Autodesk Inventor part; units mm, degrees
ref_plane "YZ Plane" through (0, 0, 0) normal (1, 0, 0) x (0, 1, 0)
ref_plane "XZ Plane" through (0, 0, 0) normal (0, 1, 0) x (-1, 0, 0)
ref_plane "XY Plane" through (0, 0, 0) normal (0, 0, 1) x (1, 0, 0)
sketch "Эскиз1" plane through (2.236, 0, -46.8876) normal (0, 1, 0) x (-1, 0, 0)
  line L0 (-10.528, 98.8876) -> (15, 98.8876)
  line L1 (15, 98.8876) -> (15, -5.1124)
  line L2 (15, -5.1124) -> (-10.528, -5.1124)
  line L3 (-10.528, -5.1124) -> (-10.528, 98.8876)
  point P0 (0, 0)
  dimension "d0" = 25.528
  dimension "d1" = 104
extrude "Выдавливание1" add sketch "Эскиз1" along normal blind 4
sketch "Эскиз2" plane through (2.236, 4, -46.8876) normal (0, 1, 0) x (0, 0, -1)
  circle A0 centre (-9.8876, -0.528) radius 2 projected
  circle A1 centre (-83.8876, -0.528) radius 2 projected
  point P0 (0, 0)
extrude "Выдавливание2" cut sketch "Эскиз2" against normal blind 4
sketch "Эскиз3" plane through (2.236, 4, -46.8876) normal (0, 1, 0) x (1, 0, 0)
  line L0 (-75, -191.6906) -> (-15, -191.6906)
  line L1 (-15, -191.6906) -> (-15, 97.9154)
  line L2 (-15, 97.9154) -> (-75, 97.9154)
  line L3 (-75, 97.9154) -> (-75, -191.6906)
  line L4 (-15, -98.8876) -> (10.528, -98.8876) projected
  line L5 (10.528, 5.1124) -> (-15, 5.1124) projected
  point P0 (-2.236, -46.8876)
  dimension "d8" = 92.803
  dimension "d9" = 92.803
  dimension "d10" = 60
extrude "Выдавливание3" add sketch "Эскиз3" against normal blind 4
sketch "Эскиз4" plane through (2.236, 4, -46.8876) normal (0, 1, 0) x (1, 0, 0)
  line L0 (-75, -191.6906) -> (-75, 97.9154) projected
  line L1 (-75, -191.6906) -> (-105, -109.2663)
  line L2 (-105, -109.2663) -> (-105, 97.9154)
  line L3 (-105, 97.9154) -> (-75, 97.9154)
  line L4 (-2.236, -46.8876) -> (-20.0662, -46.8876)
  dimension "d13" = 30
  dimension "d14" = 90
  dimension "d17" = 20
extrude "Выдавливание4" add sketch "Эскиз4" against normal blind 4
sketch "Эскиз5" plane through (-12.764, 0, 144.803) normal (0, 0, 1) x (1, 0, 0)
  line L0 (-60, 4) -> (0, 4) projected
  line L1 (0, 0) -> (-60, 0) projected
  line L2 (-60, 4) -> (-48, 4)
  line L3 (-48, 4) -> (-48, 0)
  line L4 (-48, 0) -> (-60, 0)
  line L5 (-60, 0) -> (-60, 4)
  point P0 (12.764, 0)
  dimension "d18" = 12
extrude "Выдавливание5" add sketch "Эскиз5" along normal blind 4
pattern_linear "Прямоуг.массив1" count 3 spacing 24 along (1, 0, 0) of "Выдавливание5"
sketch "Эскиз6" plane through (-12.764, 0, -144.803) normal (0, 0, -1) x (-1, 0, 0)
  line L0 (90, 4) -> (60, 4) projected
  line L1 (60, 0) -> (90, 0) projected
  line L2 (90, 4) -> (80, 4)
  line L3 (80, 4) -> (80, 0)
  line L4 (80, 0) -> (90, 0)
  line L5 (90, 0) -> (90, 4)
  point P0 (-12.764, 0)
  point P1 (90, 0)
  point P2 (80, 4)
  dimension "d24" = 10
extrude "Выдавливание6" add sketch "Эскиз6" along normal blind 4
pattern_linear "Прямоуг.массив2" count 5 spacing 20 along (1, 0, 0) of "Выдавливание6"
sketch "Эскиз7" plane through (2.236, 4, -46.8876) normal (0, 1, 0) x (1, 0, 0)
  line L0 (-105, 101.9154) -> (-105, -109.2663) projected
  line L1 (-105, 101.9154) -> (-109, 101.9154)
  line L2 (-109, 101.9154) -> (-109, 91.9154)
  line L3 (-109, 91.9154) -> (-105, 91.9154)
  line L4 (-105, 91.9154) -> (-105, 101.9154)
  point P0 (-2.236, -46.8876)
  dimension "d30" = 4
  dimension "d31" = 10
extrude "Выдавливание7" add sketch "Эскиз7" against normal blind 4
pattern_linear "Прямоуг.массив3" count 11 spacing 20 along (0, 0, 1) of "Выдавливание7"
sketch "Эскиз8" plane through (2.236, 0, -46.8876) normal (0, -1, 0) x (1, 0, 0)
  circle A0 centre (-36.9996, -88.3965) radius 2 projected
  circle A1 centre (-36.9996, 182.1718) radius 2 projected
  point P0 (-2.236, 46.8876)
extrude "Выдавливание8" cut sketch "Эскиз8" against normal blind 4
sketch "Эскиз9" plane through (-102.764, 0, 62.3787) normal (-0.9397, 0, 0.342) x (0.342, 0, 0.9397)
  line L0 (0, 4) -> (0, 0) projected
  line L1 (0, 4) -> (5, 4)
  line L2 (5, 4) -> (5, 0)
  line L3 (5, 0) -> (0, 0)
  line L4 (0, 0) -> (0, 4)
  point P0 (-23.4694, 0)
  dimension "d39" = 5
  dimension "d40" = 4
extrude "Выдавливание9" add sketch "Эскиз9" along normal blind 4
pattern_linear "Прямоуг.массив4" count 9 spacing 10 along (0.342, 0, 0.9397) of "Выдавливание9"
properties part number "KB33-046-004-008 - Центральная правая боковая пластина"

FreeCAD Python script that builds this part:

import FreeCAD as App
import Part
import Sketcher

V = App.Vector
Q = App.Units.Quantity

doc = App.newDocument("Part")
body = doc.addObject("PartDesign::Body", "Body")

sketch1 = body.newObject("Sketcher::SketchObject", "Sketch")
sketch1.AttachmentSupport = (doc.getObject("XZ_Plane"), [""])
sketch1.MapMode = "FlatFace"
sketch1.addGeometry([
    Part.LineSegment(V(-13, 52, 0), V(13, 52, 0)),
    Part.LineSegment(V(13, 52, 0), V(13, -52, 0)),
    Part.LineSegment(V(13, -52, 0), V(-13, -52, 0)),
    Part.LineSegment(V(-13, -52, 0), V(-13, 52, 0)),
], False)
sketch1.addConstraint([
    Sketcher.Constraint("Coincident", 0, 2, 1, 1),
    Sketcher.Constraint("Coincident", 1, 2, 2, 1),
    Sketcher.Constraint("Coincident", 2, 2, 3, 1),
    Sketcher.Constraint("Coincident", 3, 2, 0, 1),
    Sketcher.Constraint("Horizontal", 0),
    Sketcher.Constraint("Vertical", 1),
    Sketcher.Constraint("Horizontal", 2),
    Sketcher.Constraint("Vertical", 3),
    Sketcher.Constraint("Symmetric", 0, 2, 2, 2, -1, 1),
    Sketcher.Constraint("DistanceY", 1, 2, 1, 1, 104.0),
    Sketcher.Constraint("DistanceX", 0, 1, 0, 2, 25.528),
])
pad1 = body.newObject("PartDesign::Pad", "Pad")
pad1.Profile = sketch1
pad1.Length = 4
pad1.Reversed = True

sketch2 = body.newObject("Sketcher::SketchObject", "Sketch001")
sketch2.AttachmentSupport = (doc.getObject("XZ_Plane"), [""])
sketch2.MapMode = "FlatFace"
sketch2.AttachmentOffset = App.Placement(V(0, 0, -4), App.Rotation())
sketch2.addGeometry([
    Part.Circle(V(2.8, -37, 0), V(0, 0, 1), 2),
    Part.Circle(V(2.8, 37, 0), V(0, 0, 1), 2),
], False)
sketch2.addConstraint([
    Sketcher.Constraint("Equal", 0, 1),
    Sketcher.Constraint("Symmetric", 0, 3, 1, 3, -1),
    Sketcher.Constraint("Diameter", 0, 4.0),
    Sketcher.Constraint("DistanceY", 0, 3, -1, 1, 37.0),
    Sketcher.Constraint("DistanceX", -1, 1, 0, 3, 2.764),
])
pocket1 = body.newObject("PartDesign::Pocket", "Pocket")
pocket1.Profile = sketch2
pocket1.Length = 4
pocket1.Reversed = True

sketch3 = body.newObject("Sketcher::SketchObject", "Sketch002")
sketch3.AttachmentSupport = (doc.getObject("XZ_Plane"), [""])
sketch3.MapMode = "FlatFace"
sketch3.AttachmentOffset = App.Placement(V(0, 0, -4), App.Rotation())
sketch3.addGeometry([
    Part.LineSegment(V(-73, -145, 0), V(-73, 145, 0)),
    Part.LineSegment(V(-73, 145, 0), V(-13, 145, 0)),
    Part.LineSegment(V(-13, 145, 0), V(-13, -145, 0)),
    Part.LineSegment(V(-13, -145, 0), V(-73, -145, 0)),
], False)
sketch3.addConstraint([
    Sketcher.Constraint("Coincident", 0, 2, 1, 1),
    Sketcher.Constraint("Coincident", 1, 2, 2, 1),
    Sketcher.Constraint("Coincident", 2, 2, 3, 1),
    Sketcher.Constraint("Coincident", 3, 2, 0, 1),
    Sketcher.Constraint("Vertical", 0),
    Sketcher.Constraint("Horizontal", 1),
    Sketcher.Constraint("Vertical", 2),
    Sketcher.Constraint("Horizontal", 3),
    Sketcher.Constraint("DistanceX", 1, 1, 1, 2, 60.0),
    Sketcher.Constraint("DistanceY", 0, 1, 0, 2, 289.606),
    Sketcher.Constraint("DistanceX", 0, 2, -1, 1, 72.764),
    Sketcher.Constraint("DistanceY", -1, 1, 0, 2, 144.803),
])
pad2 = body.newObject("PartDesign::Pad", "Pad001")
pad2.Profile = sketch3
pad2.Length = 4

sketch4 = body.newObject("Sketcher::SketchObject", "Sketch003")
sketch4.AttachmentSupport = (doc.getObject("XZ_Plane"), [""])
sketch4.MapMode = "FlatFace"
sketch4.AttachmentOffset = App.Placement(V(0, 0, -4), App.Rotation())
sketch4.addGeometry([
    Part.LineSegment(V(-103, 62, 0), V(-73, 145, 0)),
    Part.LineSegment(V(-73, 145, 0), V(-73, -145, 0)),
    Part.LineSegment(V(-73, -145, 0), V(-103, -145, 0)),
    Part.LineSegment(V(-103, -145, 0), V(-103, 62, 0)),
], False)
sketch4.addConstraint([
    Sketcher.Constraint("Coincident", 0, 2, 1, 1),
    Sketcher.Constraint("Coincident", 1, 2, 2, 1),
    Sketcher.Constraint("Coincident", 2, 2, 3, 1),
    Sketcher.Constraint("Coincident", 3, 2, 0, 1),
    Sketcher.Constraint("Vertical", 1),
    Sketcher.Constraint("Horizontal", 2),
    Sketcher.Constraint("Vertical", 3),
    Sketcher.Constraint("DistanceX", 2, 2, 2, 1, 30.0),
    Sketcher.Constraint("Angle", 0, Q("70 deg")),
    Sketcher.Constraint("DistanceY", 1, 2, 1, 1, 289.606),
    Sketcher.Constraint("DistanceX", 0, 2, -1, 1, 72.764),
    Sketcher.Constraint("DistanceY", -1, 1, 0, 2, 144.803),
])
pad3 = body.newObject("PartDesign::Pad", "Pad002")
pad3.Profile = sketch4
pad3.Length = 4

sketch5 = body.newObject("Sketcher::SketchObject", "Sketch004")
sketch5.AttachmentSupport = (doc.getObject("XY_Plane"), [""])
sketch5.MapMode = "FlatFace"
sketch5.AttachmentOffset = App.Placement(V(0, 0, 144.803), App.Rotation())
sketch5.addGeometry([
    Part.LineSegment(V(-60.8, 4, 0), V(-72.8, 4, 0)),
    Part.LineSegment(V(-72.8, 4, 0), V(-72.8, 0, 0)),
    Part.LineSegment(V(-72.8, 0, 0), V(-60.8, 0, 0)),
    Part.LineSegment(V(-60.8, 0, 0), V(-60.8, 4, 0)),
], False)
sketch5.addConstraint([
    Sketcher.Constraint("Coincident", 0, 2, 1, 1),
    Sketcher.Constraint("Coincident", 1, 2, 2, 1),
    Sketcher.Constraint("Coincident", 2, 2, 3, 1),
    Sketcher.Constraint("Coincident", 3, 2, 0, 1),
    Sketcher.Constraint("Horizontal", 0),
    Sketcher.Constraint("Vertical", 1),
    Sketcher.Constraint("Horizontal", 2),
    Sketcher.Constraint("Vertical", 3),
    Sketcher.Constraint("PointOnObject", 1, 2, -1),
    Sketcher.Constraint("DistanceX", 0, 2, 0, 1, 12.0),
    Sketcher.Constraint("DistanceY", 1, 2, 1, 1, 4.0),
    Sketcher.Constraint("DistanceX", 0, 2, -1, 1, 72.764),
])
pad4 = body.newObject("PartDesign::Pad", "Pad003")
pad4.Profile = sketch5
pad4.Length = 4
doc.recompute()

linearpattern = body.newObject("PartDesign::LinearPattern", "LinearPattern")
linearpattern.Originals = [pad4]
linearpattern.Direction = (doc.getObject("X_Axis"), [""])
linearpattern.Mode = "offset"
linearpattern.Offset = 24
linearpattern.Occurrences = 3
body.Tip = linearpattern

sketch6 = body.newObject("Sketcher::SketchObject", "Sketch005")
sketch6.AttachmentSupport = (doc.getObject("XY_Plane"), [""])
sketch6.MapMode = "FlatFace"
sketch6.AttachmentOffset = App.Placement(V(0, 0, -144.803), App.Rotation())
sketch6.addGeometry([
    Part.LineSegment(V(-102.8, 0, 0), V(-102.8, 4, 0)),
    Part.LineSegment(V(-102.8, 4, 0), V(-92.8, 4, 0)),
    Part.LineSegment(V(-92.8, 4, 0), V(-92.8, 0, 0)),
    Part.LineSegment(V(-92.8, 0, 0), V(-102.8, 0, 0)),
], False)
sketch6.addConstraint([
    Sketcher.Constraint("Coincident", 0, 2, 1, 1),
    Sketcher.Constraint("Coincident", 1, 2, 2, 1),
    Sketcher.Constraint("Coincident", 2, 2, 3, 1),
    Sketcher.Constraint("Coincident", 3, 2, 0, 1),
    Sketcher.Constraint("Vertical", 0),
    Sketcher.Constraint("Horizontal", 1),
    Sketcher.Constraint("Vertical", 2),
    Sketcher.Constraint("Horizontal", 3),
    Sketcher.Constraint("PointOnObject", 2, 2, -1),
    Sketcher.Constraint("DistanceX", 1, 1, 1, 2, 10.0),
    Sketcher.Constraint("DistanceY", 0, 1, 0, 2, 4.0),
    Sketcher.Constraint("DistanceX", 0, 2, -1, 1, 102.764),
])
pad5 = body.newObject("PartDesign::Pad", "Pad004")
pad5.Profile = sketch6
pad5.Length = 4
pad5.Reversed = True
doc.recompute()

linearpattern2 = body.newObject("PartDesign::LinearPattern", "LinearPattern001")
linearpattern2.Originals = [pad5]
linearpattern2.Direction = (doc.getObject("X_Axis"), [""])
linearpattern2.Mode = "offset"
linearpattern2.Offset = 20
linearpattern2.Occurrences = 5
body.Tip = linearpattern2

sketch7 = body.newObject("Sketcher::SketchObject", "Sketch006")
sketch7.AttachmentSupport = (doc.getObject("XZ_Plane"), [""])
sketch7.MapMode = "FlatFace"
sketch7.AttachmentOffset = App.Placement(V(0, 0, -4), App.Rotation())
sketch7.addGeometry([
    Part.LineSegment(V(-102.8, -138.8, 0), V(-102.8, -148.8, 0)),
    Part.LineSegment(V(-102.8, -148.8, 0), V(-106.8, -148.8, 0)),
    Part.LineSegment(V(-106.8, -148.8, 0), V(-106.8, -138.8, 0)),
    Part.LineSegment(V(-106.8, -138.8, 0), V(-102.8, -138.8, 0)),
], False)
sketch7.addConstraint([
    Sketcher.Constraint("Coincident", 0, 2, 1, 1),
    Sketcher.Constraint("Coincident", 1, 2, 2, 1),
    Sketcher.Constraint("Coincident", 2, 2, 3, 1),
    Sketcher.Constraint("Coincident", 3, 2, 0, 1),
    Sketcher.Constraint("Vertical", 0),
    Sketcher.Constraint("Horizontal", 1),
    Sketcher.Constraint("Vertical", 2),
    Sketcher.Constraint("Horizontal", 3),
    Sketcher.Constraint("DistanceX", 1, 2, 1, 1, 4.0),
    Sketcher.Constraint("DistanceY", 0, 2, 0, 1, 10.0),
    Sketcher.Constraint("DistanceX", 0, 2, -1, 1, 102.764),
    Sketcher.Constraint("DistanceY", 0, 2, -1, 1, 148.803),
])
pad6 = body.newObject("PartDesign::Pad", "Pad005")
pad6.Profile = sketch7
pad6.Length = 4
doc.recompute()

linearpattern3 = body.newObject("PartDesign::LinearPattern", "LinearPattern002")
linearpattern3.Originals = [pad6]
linearpattern3.Direction = (doc.getObject("Z_Axis"), [""])
linearpattern3.Mode = "offset"
linearpattern3.Offset = 20
linearpattern3.Occurrences = 11
body.Tip = linearpattern3

sketch8 = body.newObject("Sketcher::SketchObject", "Sketch007")
sketch8.AttachmentSupport = (doc.getObject("XZ_Plane"), [""])
sketch8.MapMode = "FlatFace"
sketch8.addGeometry([
    Part.Circle(V(-34.8, -135.3, 0), V(0, 0, 1), 2),
    Part.Circle(V(-34.8, 135.3, 0), V(0, 0, 1), 2),
], False)
sketch8.addConstraint([
    Sketcher.Constraint("Equal", 0, 1),
    Sketcher.Constraint("Symmetric", 0, 3, 1, 3, -1),
    Sketcher.Constraint("Diameter", 0, 4.0),
    Sketcher.Constraint("DistanceY", 0, 3, -1, 1, 135.284),
    Sketcher.Constraint("DistanceX", 0, 3, -1, 1, 34.7636),
])
pocket2 = body.newObject("PartDesign::Pocket", "Pocket001")
pocket2.Profile = sketch8
pocket2.Length = 4

sketch9 = body.newObject("Sketcher::SketchObject", "Sketch008")
sketch9.Placement = App.Placement(V(-102.764, 0, 62.3787), App.Rotation(V(0.342020143, 0, 0.939692621), V(0, 1, 0), V(-0.939692621, 0, 0.342020143), "ZXY"))
sketch9.addGeometry([
    Part.LineSegment(V(5, 4, 0), V(0, 4, 0)),
    Part.LineSegment(V(0, 4, 0), V(0, 0, 0)),
    Part.LineSegment(V(0, 0, 0), V(5, 0, 0)),
    Part.LineSegment(V(5, 0, 0), V(5, 4, 0)),
], False)
sketch9.addConstraint([
    Sketcher.Constraint("Coincident", 0, 2, 1, 1),
    Sketcher.Constraint("Coincident", 1, 2, 2, 1),
    Sketcher.Constraint("Coincident", 2, 2, 3, 1),
    Sketcher.Constraint("Coincident", 3, 2, 0, 1),
    Sketcher.Constraint("Horizontal", 0),
    Sketcher.Constraint("Vertical", 1),
    Sketcher.Constraint("Horizontal", 2),
    Sketcher.Constraint("Vertical", 3),
    Sketcher.Constraint("Coincident", 1, 2, -1, 1),
    Sketcher.Constraint("DistanceX", 0, 2, 0, 1, 5.0),
    Sketcher.Constraint("DistanceY", 1, 2, 1, 1, 4.0),
])
pad7 = body.newObject("PartDesign::Pad", "Pad006")
pad7.Profile = sketch9
pad7.Length = 4
doc.recompute()

datumline = body.newObject("PartDesign::Line", "DatumLine")
datumline.Placement = App.Placement(V(0, 0, 0), App.Rotation(V(0, 0, 1), V(0.342020143, 0, 0.939692621)))
linearpattern4 = body.newObject("PartDesign::LinearPattern", "LinearPattern003")
linearpattern4.Originals = [pad7]
linearpattern4.Direction = (datumline, [""])
linearpattern4.Mode = "offset"
linearpattern4.Offset = 10
linearpattern4.Occurrences = 9
body.Tip = linearpattern4

doc.recompute()
